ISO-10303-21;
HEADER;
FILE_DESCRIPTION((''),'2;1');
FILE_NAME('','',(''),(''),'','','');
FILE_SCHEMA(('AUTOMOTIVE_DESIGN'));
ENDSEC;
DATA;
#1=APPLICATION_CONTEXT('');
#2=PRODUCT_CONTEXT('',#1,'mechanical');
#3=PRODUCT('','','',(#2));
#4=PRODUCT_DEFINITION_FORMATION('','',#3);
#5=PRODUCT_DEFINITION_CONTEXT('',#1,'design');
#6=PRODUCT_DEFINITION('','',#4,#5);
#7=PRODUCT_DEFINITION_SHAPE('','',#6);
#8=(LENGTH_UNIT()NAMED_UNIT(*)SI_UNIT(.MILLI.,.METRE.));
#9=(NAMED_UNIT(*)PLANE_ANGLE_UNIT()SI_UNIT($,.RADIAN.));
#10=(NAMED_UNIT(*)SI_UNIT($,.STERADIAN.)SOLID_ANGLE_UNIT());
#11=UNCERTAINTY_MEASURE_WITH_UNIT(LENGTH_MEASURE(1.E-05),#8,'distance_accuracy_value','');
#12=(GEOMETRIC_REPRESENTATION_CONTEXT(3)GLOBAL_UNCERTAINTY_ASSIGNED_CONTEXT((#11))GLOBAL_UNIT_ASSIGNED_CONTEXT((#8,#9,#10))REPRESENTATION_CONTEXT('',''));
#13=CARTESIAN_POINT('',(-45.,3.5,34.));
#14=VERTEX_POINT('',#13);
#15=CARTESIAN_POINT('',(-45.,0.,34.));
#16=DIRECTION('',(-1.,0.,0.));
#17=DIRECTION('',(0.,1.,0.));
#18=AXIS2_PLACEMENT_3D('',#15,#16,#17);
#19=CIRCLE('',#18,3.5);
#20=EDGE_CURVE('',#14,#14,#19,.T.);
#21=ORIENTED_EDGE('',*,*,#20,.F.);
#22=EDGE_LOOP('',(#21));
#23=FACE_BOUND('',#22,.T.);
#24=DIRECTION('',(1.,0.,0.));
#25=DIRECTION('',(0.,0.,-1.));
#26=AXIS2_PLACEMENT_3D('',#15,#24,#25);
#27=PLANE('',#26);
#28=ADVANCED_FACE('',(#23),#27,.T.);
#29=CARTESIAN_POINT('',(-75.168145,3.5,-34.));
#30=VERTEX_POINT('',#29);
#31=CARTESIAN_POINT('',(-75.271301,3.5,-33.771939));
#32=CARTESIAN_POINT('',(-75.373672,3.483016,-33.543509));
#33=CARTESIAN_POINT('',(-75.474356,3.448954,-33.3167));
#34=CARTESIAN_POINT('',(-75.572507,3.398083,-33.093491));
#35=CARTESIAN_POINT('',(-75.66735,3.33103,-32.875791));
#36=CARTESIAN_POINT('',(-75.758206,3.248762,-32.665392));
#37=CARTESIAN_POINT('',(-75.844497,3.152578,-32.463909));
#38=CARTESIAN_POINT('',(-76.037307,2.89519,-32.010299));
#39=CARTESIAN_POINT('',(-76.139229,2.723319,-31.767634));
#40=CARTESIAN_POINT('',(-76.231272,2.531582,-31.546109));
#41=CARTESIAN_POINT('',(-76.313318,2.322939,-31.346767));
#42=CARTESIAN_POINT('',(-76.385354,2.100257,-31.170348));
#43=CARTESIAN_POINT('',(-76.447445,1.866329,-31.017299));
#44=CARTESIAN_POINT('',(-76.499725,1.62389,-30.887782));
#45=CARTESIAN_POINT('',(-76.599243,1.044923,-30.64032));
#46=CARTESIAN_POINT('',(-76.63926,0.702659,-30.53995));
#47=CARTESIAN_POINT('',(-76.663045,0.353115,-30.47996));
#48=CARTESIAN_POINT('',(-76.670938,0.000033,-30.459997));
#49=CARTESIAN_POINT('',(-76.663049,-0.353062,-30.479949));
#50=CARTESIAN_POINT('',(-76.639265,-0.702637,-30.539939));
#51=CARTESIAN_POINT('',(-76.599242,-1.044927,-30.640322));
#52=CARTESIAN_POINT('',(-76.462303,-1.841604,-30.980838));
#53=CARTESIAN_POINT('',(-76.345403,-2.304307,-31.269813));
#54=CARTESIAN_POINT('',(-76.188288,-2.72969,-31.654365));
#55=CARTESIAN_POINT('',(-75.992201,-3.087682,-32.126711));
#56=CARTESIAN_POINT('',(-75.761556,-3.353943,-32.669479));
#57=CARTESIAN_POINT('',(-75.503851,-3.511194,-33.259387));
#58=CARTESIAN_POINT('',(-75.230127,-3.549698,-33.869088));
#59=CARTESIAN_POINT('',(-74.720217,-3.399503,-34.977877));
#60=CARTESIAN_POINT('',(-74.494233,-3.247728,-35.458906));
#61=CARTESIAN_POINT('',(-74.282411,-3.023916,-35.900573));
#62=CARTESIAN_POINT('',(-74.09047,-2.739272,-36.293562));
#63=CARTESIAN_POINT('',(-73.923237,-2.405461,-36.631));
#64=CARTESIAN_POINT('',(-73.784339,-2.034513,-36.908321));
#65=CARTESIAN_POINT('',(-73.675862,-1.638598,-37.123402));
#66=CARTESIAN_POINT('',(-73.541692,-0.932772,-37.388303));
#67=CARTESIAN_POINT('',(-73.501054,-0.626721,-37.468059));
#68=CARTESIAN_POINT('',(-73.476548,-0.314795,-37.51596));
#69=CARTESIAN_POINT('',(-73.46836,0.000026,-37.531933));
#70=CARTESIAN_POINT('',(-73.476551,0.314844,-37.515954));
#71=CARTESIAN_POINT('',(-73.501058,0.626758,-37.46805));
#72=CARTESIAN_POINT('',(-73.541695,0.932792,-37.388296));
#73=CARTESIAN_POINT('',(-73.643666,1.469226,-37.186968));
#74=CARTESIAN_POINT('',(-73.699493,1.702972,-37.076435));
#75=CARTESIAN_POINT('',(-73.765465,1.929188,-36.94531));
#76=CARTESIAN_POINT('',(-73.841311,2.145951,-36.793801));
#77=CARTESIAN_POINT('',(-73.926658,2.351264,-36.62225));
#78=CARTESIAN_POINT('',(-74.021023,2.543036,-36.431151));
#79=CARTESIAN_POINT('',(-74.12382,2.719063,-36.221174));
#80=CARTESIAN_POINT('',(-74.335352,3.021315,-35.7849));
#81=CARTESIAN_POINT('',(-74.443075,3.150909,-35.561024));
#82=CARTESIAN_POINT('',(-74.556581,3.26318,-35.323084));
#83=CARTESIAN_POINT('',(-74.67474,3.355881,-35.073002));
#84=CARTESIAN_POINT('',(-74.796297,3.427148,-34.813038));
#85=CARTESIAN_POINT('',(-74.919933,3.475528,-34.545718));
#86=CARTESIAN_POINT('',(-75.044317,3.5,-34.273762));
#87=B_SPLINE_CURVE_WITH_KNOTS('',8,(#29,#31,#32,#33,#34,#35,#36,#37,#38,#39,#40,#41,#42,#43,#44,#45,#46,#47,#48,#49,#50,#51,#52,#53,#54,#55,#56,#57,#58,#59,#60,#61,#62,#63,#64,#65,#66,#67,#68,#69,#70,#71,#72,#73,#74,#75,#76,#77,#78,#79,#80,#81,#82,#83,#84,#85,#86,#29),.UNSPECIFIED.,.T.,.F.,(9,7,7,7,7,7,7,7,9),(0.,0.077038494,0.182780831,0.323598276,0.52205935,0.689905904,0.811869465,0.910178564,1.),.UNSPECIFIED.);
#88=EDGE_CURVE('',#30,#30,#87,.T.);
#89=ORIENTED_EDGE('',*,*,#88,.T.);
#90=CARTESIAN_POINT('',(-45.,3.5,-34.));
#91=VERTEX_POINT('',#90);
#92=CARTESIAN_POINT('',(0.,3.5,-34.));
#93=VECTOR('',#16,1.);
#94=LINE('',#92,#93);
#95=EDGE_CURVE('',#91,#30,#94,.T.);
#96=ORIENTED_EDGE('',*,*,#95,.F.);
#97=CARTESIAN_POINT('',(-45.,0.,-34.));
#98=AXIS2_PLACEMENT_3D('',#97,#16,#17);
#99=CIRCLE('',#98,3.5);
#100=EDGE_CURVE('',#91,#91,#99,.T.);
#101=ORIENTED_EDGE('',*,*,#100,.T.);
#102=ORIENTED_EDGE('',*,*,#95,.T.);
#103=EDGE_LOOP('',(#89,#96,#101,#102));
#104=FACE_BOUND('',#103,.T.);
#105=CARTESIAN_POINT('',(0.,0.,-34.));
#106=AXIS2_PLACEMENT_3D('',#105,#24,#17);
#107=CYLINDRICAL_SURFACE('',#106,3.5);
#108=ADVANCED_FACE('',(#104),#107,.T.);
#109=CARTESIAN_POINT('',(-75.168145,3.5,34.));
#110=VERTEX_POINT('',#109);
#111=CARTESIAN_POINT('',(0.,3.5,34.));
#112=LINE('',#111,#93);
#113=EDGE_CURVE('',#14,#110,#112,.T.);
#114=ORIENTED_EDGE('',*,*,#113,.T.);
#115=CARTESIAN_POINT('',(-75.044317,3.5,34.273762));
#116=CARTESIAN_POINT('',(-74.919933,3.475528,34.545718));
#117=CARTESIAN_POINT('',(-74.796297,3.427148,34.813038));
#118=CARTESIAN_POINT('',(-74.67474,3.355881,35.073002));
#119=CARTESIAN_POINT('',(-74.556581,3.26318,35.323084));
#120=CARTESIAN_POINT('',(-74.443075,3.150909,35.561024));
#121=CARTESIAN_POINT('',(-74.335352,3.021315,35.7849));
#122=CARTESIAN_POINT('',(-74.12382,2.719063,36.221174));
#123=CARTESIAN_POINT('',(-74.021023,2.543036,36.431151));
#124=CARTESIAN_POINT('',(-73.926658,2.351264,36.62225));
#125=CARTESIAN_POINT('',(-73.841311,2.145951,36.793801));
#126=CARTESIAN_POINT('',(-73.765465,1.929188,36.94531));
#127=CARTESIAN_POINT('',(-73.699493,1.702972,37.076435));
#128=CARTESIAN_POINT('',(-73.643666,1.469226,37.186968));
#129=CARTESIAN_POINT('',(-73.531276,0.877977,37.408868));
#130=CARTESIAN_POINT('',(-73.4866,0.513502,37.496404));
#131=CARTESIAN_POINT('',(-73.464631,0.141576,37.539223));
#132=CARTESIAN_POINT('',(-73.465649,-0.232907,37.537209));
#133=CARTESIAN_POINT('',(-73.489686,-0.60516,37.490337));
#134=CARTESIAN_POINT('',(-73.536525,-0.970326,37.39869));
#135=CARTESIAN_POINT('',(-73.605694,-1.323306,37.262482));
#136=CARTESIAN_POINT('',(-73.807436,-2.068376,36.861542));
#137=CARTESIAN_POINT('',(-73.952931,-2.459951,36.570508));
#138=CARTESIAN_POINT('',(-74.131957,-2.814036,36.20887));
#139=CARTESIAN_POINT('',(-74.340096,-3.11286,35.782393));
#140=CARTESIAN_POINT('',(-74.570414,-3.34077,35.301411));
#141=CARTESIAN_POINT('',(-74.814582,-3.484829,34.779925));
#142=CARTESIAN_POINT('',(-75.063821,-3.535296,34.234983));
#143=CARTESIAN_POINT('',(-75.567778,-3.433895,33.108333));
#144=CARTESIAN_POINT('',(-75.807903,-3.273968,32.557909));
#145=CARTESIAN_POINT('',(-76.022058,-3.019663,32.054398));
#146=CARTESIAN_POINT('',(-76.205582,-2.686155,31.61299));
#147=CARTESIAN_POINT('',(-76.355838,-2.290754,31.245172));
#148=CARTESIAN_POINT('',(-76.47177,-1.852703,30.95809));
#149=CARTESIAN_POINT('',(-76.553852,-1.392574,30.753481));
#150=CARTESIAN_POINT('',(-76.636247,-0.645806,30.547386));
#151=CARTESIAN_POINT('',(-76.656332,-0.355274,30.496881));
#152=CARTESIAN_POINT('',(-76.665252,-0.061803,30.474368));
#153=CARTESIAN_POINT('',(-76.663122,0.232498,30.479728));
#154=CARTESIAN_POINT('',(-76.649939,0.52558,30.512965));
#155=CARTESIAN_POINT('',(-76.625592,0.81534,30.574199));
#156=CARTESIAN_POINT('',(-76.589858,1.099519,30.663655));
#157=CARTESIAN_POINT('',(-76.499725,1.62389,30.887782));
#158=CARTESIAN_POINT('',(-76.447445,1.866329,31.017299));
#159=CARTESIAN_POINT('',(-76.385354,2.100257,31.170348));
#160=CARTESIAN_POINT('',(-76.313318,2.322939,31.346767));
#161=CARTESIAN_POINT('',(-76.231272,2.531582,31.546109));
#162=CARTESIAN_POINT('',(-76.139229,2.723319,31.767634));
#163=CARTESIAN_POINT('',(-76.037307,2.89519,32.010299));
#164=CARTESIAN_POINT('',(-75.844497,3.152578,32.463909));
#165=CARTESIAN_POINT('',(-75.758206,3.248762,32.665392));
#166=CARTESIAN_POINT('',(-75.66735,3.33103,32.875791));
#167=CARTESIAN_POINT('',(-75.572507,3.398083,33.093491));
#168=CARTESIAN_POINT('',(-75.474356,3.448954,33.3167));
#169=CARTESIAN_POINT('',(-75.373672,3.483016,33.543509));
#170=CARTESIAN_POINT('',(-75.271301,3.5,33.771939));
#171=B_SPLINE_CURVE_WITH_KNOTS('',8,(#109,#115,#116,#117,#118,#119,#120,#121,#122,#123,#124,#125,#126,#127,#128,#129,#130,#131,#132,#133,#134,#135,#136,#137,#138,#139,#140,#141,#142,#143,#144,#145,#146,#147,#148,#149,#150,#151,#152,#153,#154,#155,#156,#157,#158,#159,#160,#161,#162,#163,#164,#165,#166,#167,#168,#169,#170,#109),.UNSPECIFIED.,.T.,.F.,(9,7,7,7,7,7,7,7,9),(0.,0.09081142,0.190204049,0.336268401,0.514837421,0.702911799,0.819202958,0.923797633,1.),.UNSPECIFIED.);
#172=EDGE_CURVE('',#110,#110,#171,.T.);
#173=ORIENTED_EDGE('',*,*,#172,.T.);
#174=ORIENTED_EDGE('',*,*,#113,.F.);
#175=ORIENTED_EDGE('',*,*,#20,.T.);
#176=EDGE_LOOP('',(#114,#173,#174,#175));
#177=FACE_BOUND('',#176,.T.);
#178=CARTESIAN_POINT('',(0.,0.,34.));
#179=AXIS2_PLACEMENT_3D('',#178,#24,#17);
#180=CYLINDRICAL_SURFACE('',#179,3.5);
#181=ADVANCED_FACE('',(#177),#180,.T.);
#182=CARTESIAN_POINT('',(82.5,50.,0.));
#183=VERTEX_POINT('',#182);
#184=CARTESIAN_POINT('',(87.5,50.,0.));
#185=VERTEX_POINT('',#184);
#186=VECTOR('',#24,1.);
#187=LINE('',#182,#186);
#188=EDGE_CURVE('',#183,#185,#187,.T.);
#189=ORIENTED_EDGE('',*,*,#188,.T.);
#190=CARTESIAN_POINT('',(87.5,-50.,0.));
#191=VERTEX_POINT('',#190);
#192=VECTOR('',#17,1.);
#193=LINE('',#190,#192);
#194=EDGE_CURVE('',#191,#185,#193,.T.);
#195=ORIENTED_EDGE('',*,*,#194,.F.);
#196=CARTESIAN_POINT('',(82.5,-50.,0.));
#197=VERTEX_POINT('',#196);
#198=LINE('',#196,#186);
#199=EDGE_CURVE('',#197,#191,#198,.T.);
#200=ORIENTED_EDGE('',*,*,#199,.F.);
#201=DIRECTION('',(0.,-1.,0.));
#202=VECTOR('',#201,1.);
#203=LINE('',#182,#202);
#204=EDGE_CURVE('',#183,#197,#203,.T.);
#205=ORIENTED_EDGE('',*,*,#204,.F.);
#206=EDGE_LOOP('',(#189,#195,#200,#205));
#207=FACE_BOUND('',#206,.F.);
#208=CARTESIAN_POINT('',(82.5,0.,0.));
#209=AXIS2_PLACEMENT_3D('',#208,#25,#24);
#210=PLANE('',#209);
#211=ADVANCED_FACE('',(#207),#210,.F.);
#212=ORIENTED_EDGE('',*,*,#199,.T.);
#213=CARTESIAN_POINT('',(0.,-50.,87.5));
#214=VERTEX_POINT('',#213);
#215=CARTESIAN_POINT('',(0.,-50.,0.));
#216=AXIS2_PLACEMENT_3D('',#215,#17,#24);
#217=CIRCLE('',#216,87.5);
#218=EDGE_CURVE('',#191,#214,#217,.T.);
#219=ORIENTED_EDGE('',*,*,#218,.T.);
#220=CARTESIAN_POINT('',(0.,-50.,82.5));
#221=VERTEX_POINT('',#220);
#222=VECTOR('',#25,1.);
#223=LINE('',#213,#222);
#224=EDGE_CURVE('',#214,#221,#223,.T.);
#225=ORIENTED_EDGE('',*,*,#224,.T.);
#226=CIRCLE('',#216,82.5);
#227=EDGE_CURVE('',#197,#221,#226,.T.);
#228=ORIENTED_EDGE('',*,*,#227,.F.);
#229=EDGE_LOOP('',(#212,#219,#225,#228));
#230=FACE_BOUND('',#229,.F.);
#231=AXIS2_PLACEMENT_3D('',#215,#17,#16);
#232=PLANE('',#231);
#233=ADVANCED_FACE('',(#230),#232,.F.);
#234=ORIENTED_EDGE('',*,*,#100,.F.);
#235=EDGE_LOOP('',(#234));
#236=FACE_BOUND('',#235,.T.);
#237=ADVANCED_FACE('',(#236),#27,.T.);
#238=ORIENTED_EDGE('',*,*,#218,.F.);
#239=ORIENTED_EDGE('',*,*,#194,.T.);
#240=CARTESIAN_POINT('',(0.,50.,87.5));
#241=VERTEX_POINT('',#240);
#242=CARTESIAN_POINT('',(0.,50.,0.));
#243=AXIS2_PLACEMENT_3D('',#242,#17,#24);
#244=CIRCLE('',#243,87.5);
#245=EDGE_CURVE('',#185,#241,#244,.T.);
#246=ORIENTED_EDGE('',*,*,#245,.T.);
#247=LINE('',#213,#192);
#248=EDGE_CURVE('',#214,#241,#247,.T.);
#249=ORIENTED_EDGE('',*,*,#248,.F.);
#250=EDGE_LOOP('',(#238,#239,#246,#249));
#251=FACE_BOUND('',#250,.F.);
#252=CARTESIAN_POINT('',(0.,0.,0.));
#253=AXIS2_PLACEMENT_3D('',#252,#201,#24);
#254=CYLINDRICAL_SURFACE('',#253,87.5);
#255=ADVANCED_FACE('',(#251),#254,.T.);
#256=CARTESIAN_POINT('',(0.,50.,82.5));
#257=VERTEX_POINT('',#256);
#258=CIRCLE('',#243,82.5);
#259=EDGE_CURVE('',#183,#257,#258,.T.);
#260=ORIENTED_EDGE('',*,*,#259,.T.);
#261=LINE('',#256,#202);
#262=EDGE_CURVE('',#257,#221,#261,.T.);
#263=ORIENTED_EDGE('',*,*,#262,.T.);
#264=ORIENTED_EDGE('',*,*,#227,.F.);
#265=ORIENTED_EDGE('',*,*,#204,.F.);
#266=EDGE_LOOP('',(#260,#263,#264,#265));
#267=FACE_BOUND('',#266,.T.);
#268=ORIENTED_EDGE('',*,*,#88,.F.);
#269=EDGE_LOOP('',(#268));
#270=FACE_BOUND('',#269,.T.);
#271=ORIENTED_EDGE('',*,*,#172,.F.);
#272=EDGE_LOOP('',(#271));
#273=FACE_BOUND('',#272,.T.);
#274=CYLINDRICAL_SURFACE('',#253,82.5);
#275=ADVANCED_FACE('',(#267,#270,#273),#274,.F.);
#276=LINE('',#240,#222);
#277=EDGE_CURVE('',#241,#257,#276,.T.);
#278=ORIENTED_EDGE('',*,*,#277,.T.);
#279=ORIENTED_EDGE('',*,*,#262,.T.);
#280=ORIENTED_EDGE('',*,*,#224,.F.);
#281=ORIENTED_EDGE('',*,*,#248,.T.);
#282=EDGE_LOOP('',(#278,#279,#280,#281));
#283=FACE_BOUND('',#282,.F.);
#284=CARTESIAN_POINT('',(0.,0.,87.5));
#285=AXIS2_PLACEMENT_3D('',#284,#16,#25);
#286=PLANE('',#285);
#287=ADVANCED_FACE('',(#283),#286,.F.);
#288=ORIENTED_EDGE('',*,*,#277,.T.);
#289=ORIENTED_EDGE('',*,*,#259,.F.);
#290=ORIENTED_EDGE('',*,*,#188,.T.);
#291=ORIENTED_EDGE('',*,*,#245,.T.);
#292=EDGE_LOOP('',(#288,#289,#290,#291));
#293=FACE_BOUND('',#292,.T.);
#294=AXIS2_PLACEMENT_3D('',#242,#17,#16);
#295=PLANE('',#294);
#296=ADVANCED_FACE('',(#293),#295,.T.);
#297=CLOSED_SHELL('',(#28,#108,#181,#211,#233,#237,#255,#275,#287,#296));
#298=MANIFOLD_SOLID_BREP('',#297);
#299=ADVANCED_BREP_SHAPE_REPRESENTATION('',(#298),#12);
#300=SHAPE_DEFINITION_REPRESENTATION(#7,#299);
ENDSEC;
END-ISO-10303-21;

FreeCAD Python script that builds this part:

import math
import FreeCAD as App
import Part
import Sketcher

doc = App.newDocument("Part")
body = doc.addObject("PartDesign::Body", "Body")

sketch1 = doc.addObject("Sketcher::SketchObject", "Sketch")
body.addObject(sketch1)
sketch1.AttachmentSupport = (doc.XZ_Plane, [""])
sketch1.MapMode = "FlatFace"
sketch1.addGeometry(Part.LineSegment(App.Vector(82, 0, 0), App.Vector(88, 0, 0)), False)
sketch1.addGeometry(Part.ArcOfCircle(Part.Circle(App.Vector(0, 0, 0), App.Vector(0, 0, 1), 88), math.radians(90), math.radians(360)), False)
sketch1.addGeometry(Part.LineSegment(App.Vector(0, 88, 0), App.Vector(0, 82, 0)), False)
sketch1.addGeometry(Part.ArcOfCircle(Part.Circle(App.Vector(0, 0, 0), App.Vector(0, 0, 1), 82), math.radians(90), math.radians(360)), False)
sketch1.addConstraint(Sketcher.Constraint("Coincident", 0, 2, 1, 2))
sketch1.addConstraint(Sketcher.Constraint("Coincident", 1, 1, 2, 1))
sketch1.addConstraint(Sketcher.Constraint("Coincident", 2, 2, 3, 1))
sketch1.addConstraint(Sketcher.Constraint("Coincident", 3, 2, 0, 1))
sketch1.addConstraint(Sketcher.Constraint("Horizontal", 0))
sketch1.addConstraint(Sketcher.Constraint("Vertical", 2))
sketch1.addConstraint(Sketcher.Constraint("Coincident", 1, 3, -1, 1))
sketch1.addConstraint(Sketcher.Constraint("Coincident", 3, 3, -1, 1))
sketch1.addConstraint(Sketcher.Constraint("PointOnObject", 0, 2, -1))
sketch1.addConstraint(Sketcher.Constraint("PointOnObject", 1, 1, -2))
sketch1.addConstraint(Sketcher.Constraint("Radius", 1, 87.5))
sketch1.addConstraint(Sketcher.Constraint("Radius", 3, 82.5))
pad1 = doc.addObject("PartDesign::Pad", "Pad")
body.addObject(pad1)
pad1.Profile = sketch1
pad1.Length = 100
pad1.Midplane = True

sketch2 = doc.addObject("Sketcher::SketchObject", "Sketch001")
body.addObject(sketch2)
sketch2.AttachmentSupport = (doc.YZ_Plane, [""])
sketch2.MapMode = "FlatFace"
sketch2.addGeometry(Part.Circle(App.Vector(0, 34, 0), App.Vector(0, 0, 1), 3.5), False)
sketch2.addGeometry(Part.Circle(App.Vector(0, -34, 0), App.Vector(0, 0, 1), 3.5), False)
sketch2.addConstraint(Sketcher.Constraint("Equal", 0, 1))
sketch2.addConstraint(Sketcher.Constraint("Symmetric", 0, 3, 1, 3, -1, 1))
sketch2.addConstraint(Sketcher.Constraint("PointOnObject", 0, 3, -2))
sketch2.addConstraint(Sketcher.Constraint("Diameter", 0, 7.0))
sketch2.addConstraint(Sketcher.Constraint("DistanceY", -1, 1, 0, 3, 34.0))
pad2 = doc.addObject("PartDesign::Pad", "Pad001")
body.addObject(pad2)
pad2.Profile = sketch2
pad2.Type = "UpToFirst"
pad2.Reversed = True

sketch3 = doc.addObject("Sketcher::SketchObject", "Sketch002")
body.addObject(sketch3)
sketch3.AttachmentSupport = (doc.YZ_Plane, [""])
sketch3.MapMode = "FlatFace"
sketch3.addGeometry(Part.Circle(App.Vector(0, 34, 0), App.Vector(0, 0, 1), 3.5), False)
sketch3.addGeometry(Part.Circle(App.Vector(0, -34, 0), App.Vector(0, 0, 1), 3.5), False)
sketch3.addConstraint(Sketcher.Constraint("Equal", 0, 1))
sketch3.addConstraint(Sketcher.Constraint("Symmetric", 0, 3, 1, 3, -1, 1))
sketch3.addConstraint(Sketcher.Constraint("PointOnObject", 0, 3, -2))
sketch3.addConstraint(Sketcher.Constraint("Diameter", 0, 7.0))
sketch3.addConstraint(Sketcher.Constraint("DistanceY", -1, 1, 0, 3, 34.0))
pocket1 = doc.addObject("PartDesign::Pocket", "Pocket")
body.addObject(pocket1)
pocket1.Profile = sketch3
pocket1.Length = 45

doc.recompute()
